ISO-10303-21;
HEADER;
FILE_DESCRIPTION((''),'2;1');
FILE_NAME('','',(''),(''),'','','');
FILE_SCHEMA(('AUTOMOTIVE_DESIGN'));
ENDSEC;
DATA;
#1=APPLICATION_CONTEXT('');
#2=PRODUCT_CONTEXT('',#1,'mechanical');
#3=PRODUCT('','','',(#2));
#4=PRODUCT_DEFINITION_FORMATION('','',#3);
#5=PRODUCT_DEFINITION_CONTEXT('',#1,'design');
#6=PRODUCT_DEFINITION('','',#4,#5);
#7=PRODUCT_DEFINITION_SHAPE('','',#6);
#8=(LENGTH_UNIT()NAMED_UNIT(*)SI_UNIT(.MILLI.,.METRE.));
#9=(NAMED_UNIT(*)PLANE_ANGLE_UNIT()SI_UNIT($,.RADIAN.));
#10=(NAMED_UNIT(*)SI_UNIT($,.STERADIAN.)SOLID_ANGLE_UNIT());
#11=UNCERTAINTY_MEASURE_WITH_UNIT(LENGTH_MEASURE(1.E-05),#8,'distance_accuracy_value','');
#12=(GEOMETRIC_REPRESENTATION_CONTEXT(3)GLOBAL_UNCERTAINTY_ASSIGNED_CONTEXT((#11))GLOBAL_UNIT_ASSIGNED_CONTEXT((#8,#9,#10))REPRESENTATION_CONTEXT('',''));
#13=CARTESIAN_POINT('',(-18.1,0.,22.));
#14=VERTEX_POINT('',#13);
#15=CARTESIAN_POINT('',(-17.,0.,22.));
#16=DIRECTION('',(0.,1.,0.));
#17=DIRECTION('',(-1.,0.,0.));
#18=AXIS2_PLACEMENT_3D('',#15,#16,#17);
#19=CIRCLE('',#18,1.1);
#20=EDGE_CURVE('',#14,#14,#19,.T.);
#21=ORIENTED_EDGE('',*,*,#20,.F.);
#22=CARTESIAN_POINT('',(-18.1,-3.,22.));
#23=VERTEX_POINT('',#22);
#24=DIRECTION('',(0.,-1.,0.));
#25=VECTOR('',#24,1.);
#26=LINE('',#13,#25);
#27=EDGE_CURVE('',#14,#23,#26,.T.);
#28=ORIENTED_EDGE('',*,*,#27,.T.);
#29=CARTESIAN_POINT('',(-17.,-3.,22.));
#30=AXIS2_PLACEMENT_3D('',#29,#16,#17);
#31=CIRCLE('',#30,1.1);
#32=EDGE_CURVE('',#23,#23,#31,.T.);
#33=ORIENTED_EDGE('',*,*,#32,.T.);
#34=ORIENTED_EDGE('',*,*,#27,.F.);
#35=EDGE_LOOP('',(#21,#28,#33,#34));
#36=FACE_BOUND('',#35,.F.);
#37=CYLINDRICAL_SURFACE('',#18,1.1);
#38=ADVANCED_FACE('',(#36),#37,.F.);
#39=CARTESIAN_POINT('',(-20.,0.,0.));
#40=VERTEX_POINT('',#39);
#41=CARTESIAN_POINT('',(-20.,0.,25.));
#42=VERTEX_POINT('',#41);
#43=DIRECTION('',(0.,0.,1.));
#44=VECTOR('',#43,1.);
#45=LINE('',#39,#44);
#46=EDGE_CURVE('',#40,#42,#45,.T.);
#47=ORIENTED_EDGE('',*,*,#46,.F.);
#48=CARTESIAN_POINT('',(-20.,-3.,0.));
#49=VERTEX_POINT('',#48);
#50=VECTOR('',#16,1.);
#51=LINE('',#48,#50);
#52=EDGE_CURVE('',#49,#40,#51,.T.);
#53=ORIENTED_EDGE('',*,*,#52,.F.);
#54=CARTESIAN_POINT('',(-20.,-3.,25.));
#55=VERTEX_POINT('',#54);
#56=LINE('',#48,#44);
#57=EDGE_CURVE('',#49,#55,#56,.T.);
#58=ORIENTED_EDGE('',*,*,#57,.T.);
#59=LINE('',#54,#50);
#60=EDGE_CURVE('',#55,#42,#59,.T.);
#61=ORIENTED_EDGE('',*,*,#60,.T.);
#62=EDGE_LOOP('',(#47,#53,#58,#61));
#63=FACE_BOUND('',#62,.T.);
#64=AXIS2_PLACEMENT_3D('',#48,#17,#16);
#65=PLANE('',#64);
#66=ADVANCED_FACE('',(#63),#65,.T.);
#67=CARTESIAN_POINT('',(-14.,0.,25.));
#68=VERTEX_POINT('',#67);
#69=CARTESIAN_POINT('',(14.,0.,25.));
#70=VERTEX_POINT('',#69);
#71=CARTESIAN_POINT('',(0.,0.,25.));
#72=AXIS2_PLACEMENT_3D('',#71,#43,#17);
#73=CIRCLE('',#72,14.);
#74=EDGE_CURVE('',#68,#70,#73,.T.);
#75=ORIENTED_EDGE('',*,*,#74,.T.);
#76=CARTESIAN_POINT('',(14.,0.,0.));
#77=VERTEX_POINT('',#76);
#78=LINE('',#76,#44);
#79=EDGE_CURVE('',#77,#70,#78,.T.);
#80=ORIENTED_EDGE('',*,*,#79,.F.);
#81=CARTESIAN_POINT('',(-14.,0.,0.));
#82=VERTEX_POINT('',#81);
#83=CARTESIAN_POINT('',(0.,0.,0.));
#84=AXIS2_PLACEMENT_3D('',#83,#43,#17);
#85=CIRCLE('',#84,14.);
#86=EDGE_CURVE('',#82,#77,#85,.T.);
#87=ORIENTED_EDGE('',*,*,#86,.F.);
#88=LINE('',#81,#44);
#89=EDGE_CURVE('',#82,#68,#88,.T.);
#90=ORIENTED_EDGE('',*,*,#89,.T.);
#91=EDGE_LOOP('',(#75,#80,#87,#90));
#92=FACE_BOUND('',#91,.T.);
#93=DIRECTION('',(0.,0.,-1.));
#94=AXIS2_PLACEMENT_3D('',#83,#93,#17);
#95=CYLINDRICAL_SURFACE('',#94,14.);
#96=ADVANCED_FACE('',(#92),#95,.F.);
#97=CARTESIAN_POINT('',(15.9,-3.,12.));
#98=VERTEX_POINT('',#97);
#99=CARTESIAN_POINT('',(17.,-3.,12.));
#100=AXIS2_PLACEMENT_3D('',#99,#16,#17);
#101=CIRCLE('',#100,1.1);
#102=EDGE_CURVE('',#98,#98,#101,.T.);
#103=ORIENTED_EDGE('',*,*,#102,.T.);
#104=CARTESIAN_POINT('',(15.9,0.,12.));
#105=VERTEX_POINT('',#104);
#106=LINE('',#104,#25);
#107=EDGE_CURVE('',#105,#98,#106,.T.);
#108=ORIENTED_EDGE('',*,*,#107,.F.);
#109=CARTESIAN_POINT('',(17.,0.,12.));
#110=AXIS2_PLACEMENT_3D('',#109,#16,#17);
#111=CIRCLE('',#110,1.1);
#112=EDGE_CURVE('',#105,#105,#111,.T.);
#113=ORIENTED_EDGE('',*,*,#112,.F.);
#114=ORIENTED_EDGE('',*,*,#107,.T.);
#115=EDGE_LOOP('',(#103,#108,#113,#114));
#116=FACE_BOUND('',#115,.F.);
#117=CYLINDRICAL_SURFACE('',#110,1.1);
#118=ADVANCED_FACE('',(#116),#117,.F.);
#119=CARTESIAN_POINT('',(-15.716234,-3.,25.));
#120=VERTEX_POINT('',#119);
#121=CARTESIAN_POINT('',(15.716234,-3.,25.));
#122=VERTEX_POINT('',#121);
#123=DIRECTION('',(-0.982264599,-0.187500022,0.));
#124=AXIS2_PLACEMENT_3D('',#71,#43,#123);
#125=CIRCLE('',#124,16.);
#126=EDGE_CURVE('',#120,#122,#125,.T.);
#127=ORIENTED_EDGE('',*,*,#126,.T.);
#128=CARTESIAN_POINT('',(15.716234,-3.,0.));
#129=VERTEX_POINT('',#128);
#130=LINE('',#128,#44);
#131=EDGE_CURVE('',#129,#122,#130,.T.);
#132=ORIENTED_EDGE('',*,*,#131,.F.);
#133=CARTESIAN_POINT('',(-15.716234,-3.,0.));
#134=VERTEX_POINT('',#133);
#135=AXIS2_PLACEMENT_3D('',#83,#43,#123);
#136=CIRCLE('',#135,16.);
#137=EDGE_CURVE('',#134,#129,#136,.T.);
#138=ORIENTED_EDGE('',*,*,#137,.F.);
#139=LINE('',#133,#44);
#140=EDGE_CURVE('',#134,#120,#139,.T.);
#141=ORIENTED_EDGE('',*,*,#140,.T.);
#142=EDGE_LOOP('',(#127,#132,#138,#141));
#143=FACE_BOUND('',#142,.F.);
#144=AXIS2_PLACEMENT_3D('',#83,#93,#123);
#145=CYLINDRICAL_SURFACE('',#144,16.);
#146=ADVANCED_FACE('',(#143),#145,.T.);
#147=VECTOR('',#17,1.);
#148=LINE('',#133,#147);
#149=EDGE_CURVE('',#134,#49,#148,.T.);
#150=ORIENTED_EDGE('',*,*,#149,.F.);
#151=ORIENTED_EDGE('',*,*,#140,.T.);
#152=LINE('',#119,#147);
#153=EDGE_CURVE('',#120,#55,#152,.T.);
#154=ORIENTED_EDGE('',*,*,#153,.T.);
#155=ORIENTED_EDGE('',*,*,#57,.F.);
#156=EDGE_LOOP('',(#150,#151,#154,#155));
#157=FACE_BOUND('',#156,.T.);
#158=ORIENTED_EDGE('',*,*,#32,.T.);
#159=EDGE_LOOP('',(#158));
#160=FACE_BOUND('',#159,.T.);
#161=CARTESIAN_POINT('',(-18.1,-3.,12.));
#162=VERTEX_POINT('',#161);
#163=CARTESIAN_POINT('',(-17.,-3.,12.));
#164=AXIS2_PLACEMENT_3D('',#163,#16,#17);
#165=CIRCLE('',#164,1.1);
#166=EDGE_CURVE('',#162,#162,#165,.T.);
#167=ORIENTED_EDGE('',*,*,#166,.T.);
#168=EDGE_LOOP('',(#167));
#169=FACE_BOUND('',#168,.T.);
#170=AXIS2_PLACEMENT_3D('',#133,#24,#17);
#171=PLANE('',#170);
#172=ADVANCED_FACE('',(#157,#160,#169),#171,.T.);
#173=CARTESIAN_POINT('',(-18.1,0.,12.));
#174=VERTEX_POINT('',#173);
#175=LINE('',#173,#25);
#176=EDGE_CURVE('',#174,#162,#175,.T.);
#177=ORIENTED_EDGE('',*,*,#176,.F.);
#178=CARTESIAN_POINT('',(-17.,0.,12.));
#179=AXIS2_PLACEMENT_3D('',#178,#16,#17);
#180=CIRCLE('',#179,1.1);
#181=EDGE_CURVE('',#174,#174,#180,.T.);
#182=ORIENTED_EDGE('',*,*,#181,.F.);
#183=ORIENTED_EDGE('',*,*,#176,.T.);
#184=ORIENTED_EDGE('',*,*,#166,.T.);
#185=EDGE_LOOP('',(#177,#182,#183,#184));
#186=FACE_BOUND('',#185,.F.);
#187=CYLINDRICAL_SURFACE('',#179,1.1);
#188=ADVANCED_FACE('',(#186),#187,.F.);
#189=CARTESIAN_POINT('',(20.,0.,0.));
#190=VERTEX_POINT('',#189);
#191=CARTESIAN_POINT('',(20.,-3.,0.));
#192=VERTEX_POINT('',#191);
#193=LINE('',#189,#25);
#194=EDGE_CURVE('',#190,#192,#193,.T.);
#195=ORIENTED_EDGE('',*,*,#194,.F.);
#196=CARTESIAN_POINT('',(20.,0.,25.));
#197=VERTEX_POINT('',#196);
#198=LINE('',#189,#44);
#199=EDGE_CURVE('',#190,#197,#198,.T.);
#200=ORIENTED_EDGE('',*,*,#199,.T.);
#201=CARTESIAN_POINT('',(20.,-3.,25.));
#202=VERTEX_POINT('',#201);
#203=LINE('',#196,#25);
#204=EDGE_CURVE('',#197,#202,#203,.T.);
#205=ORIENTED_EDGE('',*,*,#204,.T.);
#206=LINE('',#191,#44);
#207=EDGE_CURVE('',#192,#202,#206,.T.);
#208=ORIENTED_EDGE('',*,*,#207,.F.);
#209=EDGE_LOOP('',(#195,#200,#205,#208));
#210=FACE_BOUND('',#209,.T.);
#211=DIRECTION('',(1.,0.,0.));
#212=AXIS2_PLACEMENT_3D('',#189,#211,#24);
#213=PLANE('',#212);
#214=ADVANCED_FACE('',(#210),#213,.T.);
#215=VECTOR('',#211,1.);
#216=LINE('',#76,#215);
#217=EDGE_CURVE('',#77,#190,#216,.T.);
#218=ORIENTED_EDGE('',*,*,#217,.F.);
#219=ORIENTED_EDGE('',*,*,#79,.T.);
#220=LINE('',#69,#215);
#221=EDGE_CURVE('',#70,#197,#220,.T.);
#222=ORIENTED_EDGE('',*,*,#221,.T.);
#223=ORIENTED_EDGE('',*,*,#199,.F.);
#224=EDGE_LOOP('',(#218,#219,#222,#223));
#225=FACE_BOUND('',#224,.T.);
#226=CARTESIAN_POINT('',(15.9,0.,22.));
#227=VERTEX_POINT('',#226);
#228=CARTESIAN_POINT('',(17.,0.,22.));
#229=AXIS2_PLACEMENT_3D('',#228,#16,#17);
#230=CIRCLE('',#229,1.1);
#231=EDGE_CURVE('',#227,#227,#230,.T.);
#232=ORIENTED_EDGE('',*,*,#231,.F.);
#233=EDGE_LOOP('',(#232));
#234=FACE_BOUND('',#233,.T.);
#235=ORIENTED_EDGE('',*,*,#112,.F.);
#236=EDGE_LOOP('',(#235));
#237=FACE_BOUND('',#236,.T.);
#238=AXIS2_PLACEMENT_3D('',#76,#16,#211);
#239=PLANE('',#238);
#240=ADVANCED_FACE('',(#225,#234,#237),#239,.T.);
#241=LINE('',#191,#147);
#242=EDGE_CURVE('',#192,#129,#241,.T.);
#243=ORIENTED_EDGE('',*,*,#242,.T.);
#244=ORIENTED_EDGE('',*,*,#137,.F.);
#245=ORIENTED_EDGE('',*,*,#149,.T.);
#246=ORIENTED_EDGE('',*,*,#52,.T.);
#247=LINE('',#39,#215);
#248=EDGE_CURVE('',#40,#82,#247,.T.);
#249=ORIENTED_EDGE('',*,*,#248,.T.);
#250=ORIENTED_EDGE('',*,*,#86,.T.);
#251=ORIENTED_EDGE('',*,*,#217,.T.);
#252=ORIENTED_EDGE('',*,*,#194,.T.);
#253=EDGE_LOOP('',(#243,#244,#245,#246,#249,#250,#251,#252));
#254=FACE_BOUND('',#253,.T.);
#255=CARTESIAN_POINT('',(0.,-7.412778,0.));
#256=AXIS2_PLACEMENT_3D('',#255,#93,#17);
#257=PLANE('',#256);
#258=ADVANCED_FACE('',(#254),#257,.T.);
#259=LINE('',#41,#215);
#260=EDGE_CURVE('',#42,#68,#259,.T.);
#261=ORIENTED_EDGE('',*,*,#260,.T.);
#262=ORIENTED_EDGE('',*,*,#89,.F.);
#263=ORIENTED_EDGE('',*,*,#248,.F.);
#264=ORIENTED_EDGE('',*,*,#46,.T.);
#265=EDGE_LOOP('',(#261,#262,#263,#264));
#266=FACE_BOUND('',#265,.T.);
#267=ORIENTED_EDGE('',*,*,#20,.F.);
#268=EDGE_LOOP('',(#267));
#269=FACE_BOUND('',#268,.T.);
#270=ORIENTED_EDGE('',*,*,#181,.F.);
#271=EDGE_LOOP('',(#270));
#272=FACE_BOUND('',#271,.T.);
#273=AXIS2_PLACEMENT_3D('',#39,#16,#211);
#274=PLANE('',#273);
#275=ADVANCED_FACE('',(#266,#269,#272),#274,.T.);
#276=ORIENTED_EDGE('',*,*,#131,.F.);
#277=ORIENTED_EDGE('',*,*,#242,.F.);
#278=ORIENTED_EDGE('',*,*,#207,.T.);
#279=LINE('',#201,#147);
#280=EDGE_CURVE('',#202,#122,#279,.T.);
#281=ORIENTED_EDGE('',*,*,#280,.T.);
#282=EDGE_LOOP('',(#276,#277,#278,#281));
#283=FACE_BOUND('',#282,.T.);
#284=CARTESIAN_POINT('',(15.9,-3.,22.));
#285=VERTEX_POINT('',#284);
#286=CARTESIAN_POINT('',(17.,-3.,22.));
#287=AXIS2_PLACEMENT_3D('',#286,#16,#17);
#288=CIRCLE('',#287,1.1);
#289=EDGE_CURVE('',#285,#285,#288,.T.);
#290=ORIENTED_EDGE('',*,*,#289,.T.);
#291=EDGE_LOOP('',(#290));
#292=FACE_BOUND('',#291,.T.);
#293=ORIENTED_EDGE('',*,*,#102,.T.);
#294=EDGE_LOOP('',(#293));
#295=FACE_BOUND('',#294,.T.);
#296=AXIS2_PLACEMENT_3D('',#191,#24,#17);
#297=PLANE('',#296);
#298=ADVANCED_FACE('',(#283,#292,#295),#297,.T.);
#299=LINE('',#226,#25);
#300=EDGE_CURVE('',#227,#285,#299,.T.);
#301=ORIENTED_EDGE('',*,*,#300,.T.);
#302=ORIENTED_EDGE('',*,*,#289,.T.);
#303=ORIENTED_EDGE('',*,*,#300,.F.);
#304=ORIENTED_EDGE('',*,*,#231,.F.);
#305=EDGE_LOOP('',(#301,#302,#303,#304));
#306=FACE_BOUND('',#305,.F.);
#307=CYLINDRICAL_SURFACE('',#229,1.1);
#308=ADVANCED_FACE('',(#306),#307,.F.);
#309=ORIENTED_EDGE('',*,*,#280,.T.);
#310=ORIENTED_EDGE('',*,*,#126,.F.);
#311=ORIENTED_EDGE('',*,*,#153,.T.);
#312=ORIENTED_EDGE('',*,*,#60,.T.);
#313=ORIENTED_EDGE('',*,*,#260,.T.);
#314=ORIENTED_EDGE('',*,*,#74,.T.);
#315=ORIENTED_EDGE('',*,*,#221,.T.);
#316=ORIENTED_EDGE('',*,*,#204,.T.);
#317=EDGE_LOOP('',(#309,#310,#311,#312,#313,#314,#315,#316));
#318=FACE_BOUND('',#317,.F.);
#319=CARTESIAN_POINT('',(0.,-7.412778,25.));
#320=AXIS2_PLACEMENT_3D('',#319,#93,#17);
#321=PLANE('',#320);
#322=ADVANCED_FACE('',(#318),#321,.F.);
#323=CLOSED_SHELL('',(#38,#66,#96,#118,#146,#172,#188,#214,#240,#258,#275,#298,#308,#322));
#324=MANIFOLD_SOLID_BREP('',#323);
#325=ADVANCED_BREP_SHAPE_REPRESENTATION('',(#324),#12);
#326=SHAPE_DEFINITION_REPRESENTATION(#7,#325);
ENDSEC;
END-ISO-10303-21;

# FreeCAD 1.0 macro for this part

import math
import FreeCAD as App
import Part
import Sketcher

V = App.Vector
Q = App.Units.Quantity

doc = App.newDocument("Part")
params = doc.addObject("Spreadsheet::Sheet", "Params")
for row, (alias, value) in enumerate([
    ("sketch1_radius", "16 mm"),
    ("sketch1_radius2", "14 mm"),
    ("sketch1_width", "6 mm"),
    ("sketch1_height", "3 mm"),
    ("pad1_length", "25 mm"),
    ("sketch2_diameter", "2.2 mm"),
], start=1):
    params.set(f"A{row}", alias)
    params.set(f"B{row}", "=" + value)
    params.setAlias(f"B{row}", alias)

body = doc.addObject("PartDesign::Body", "Body")

# Sketch on XY plane
sketch1 = body.newObject("Sketcher::SketchObject", "Sketch")
sketch1.AttachmentSupport = (doc.getObject("XY_Plane"), [""])
sketch1.MapMode = "FlatFace"
sketch1.addGeometry(Part.LineSegment(V(-20, -3, 0), V(-15.7, -3, 0)), False)
sketch1.addGeometry(Part.ArcOfCircle(Part.Circle(V(0, 0, 0), V(0, 0, 1), 16), math.radians(-169), math.radians(-11)), False)
sketch1.addGeometry(Part.LineSegment(V(15.7, -3, 0), V(20, -3, 0)), False)
sketch1.addGeometry(Part.LineSegment(V(20, -3, 0), V(20, 0, 0)), False)
sketch1.addGeometry(Part.LineSegment(V(20, 0, 0), V(14, 0, 0)), False)
sketch1.addGeometry(Part.ArcOfCircle(Part.Circle(V(0, 0, 0), V(0, 0, 1), 14), math.radians(180), math.radians(360)), False)
sketch1.addGeometry(Part.LineSegment(V(-14, 0, 0), V(-20, 0, 0)), False)
sketch1.addGeometry(Part.LineSegment(V(-20, 0, 0), V(-20, -3, 0)), False)
sketch1.addConstraint(Sketcher.Constraint("Coincident", 0, 2, 1, 1))
sketch1.addConstraint(Sketcher.Constraint("Coincident", 1, 2, 2, 1))
sketch1.addConstraint(Sketcher.Constraint("Coincident", 2, 2, 3, 1))
sketch1.addConstraint(Sketcher.Constraint("Coincident", 3, 2, 4, 1))
sketch1.addConstraint(Sketcher.Constraint("Coincident", 4, 2, 5, 2))
sketch1.addConstraint(Sketcher.Constraint("Coincident", 5, 1, 6, 1))
sketch1.addConstraint(Sketcher.Constraint("Coincident", 6, 2, 7, 1))
sketch1.addConstraint(Sketcher.Constraint("Coincident", 7, 2, 0, 1))
sketch1.addConstraint(Sketcher.Constraint("Horizontal", 0))
sketch1.addConstraint(Sketcher.Constraint("Horizontal", 2))
sketch1.addConstraint(Sketcher.Constraint("Vertical", 3))
sketch1.addConstraint(Sketcher.Constraint("Horizontal", 4))
sketch1.addConstraint(Sketcher.Constraint("Horizontal", 6))
sketch1.addConstraint(Sketcher.Constraint("Vertical", 7))
sketch1.addConstraint(Sketcher.Constraint("Coincident", 1, 3, -1, 1))
sketch1.addConstraint(Sketcher.Constraint("Coincident", 5, 3, -1, 1))
sketch1.addConstraint(Sketcher.Constraint("Symmetric", 3, 2, 6, 2, -1, 1))
sketch1.addConstraint(Sketcher.Constraint("PointOnObject", 3, 2, -1))
sketch1.addConstraint(Sketcher.Constraint("Horizontal", 0, 2, 1, 2))
sketch1.addConstraint(Sketcher.Constraint("Radius", 1, Q("16 mm")))
sketch1.addConstraint(Sketcher.Constraint("Radius", 5, Q("14 mm")))
sketch1.addConstraint(Sketcher.Constraint("DistanceX", 4, 2, 4, 1, Q("6 mm")))
sketch1.addConstraint(Sketcher.Constraint("DistanceY", 3, 1, 3, 2, Q("3 mm")))
sketch1.setExpression("Constraints[19]", "Params.sketch1_radius")
sketch1.setExpression("Constraints[20]", "Params.sketch1_radius2")
sketch1.setExpression("Constraints[21]", "Params.sketch1_width")
sketch1.setExpression("Constraints[22]", "Params.sketch1_height")
pad1 = body.newObject("PartDesign::Pad", "Pad")
pad1.Profile = sketch1
pad1.setExpression("Length", "Params.pad1_length")

# Sketch on XZ plane
sketch2 = body.newObject("Sketcher::SketchObject", "Sketch001")
sketch2.AttachmentSupport = (doc.getObject("XZ_Plane"), [""])
sketch2.MapMode = "FlatFace"
sketch2.addGeometry(Part.Circle(V(17, 22, 0), V(0, 0, 1), 1.1), False)
sketch2.addGeometry(Part.Circle(V(17, 12, 0), V(0, 0, 1), 1.1), False)
sketch2.addGeometry(Part.Circle(V(-17, 22, 0), V(0, 0, 1), 1.1), False)
sketch2.addGeometry(Part.Circle(V(-17, 12, 0), V(0, 0, 1), 1.1), False)
sketch2.addConstraint(Sketcher.Constraint("Equal", 0, 1))
sketch2.addConstraint(Sketcher.Constraint("Equal", 1, 2))
sketch2.addConstraint(Sketcher.Constraint("Equal", 2, 3))
sketch2.addConstraint(Sketcher.Constraint("Symmetric", 0, 3, 2, 3, -2))
sketch2.addConstraint(Sketcher.Constraint("Symmetric", 1, 3, 3, 3, -2))
sketch2.addConstraint(Sketcher.Constraint("Vertical", 0, 3, 1, 3))
sketch2.addConstraint(Sketcher.Constraint("Diameter", 0, Q("2.2 mm")))
sketch2.addConstraint(Sketcher.Constraint("DistanceX", -1, 1, 0, 3, Q("17 mm")))
sketch2.addConstraint(Sketcher.Constraint("DistanceY", -1, 1, 0, 3, Q("22 mm")))
sketch2.addConstraint(Sketcher.Constraint("DistanceY", -1, 1, 1, 3, Q("12 mm")))
sketch2.setExpression("Constraints[6]", "Params.sketch2_diameter")
pocket1 = body.newObject("PartDesign::Pocket", "Pocket")
pocket1.Profile = sketch2
pocket1.Type = "ThroughAll"
pocket1.Reversed = True

doc.recompute()
